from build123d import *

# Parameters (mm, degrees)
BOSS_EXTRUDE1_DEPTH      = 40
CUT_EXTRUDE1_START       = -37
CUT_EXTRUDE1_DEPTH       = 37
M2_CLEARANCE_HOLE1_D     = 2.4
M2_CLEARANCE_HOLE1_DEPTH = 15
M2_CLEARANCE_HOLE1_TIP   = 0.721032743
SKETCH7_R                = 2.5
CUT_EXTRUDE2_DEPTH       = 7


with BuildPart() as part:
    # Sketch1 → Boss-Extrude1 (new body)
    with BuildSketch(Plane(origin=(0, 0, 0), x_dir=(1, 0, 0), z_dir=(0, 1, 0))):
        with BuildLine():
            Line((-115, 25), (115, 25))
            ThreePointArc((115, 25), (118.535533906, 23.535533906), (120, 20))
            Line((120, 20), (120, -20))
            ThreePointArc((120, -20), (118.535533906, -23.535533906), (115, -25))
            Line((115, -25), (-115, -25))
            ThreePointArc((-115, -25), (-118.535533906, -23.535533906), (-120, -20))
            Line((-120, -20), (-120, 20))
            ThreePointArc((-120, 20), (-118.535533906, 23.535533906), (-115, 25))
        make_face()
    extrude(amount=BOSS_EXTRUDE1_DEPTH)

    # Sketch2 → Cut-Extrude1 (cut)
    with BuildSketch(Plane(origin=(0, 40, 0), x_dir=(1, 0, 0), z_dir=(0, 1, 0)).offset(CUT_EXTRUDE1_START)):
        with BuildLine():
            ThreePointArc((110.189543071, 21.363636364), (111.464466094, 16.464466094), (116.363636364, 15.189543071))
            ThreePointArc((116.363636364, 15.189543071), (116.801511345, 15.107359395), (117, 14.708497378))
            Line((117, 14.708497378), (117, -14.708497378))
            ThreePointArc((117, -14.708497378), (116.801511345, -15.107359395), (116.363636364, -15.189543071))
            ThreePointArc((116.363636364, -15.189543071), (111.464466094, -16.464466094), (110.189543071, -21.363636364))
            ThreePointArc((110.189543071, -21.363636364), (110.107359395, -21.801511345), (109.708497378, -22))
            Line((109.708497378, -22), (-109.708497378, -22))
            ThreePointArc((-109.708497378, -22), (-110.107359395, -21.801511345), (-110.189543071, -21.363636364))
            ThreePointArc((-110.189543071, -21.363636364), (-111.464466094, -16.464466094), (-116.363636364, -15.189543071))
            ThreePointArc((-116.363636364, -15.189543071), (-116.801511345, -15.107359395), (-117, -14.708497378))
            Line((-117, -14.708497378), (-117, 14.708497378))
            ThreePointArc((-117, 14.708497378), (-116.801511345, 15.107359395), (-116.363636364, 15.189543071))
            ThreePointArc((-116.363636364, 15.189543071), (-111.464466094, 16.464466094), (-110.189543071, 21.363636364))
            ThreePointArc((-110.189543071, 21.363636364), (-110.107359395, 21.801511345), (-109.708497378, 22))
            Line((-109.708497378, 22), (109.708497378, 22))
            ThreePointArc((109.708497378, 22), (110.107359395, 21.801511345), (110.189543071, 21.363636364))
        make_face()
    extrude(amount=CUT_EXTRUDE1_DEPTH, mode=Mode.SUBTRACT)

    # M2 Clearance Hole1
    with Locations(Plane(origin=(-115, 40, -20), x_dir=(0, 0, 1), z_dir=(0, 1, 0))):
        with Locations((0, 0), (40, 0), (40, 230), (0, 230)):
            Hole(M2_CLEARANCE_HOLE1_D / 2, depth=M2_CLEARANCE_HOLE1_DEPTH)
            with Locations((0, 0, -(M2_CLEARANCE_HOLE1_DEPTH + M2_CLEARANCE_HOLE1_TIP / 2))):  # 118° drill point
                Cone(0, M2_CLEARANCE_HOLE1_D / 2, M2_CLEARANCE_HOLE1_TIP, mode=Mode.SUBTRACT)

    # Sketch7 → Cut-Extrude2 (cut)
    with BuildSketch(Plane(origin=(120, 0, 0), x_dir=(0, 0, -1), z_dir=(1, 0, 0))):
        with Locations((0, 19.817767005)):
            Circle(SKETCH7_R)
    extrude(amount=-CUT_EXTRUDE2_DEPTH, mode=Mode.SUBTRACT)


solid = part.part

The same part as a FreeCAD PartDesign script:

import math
import FreeCAD as App
import Part
import Sketcher

V = App.Vector
Q = App.Units.Quantity

doc = App.newDocument("Part")
body = doc.addObject("PartDesign::Body", "Body")

sketch1 = doc.addObject("Sketcher::SketchObject", "Sketch")
body.addObject(sketch1)
sketch1.AttachmentSupport = (doc.XZ_Plane, [""])
sketch1.MapMode = "FlatFace"
sketch1.addGeometry([
    Part.LineSegment(V(115, -25, 0), V(-115, -25, 0)),
    Part.ArcOfCircle(Part.Circle(V(-115, -20, 0), V(0, 0, 1), 5), math.radians(180), math.radians(270)),
    Part.LineSegment(V(-120, -20, 0), V(-120, 20, 0)),
    Part.ArcOfCircle(Part.Circle(V(-115, 20, 0), V(0, 0, 1), 5), math.radians(90), math.radians(180)),
    Part.LineSegment(V(-115, 25, 0), V(115, 25, 0)),
    Part.ArcOfCircle(Part.Circle(V(115, 20, 0), V(0, 0, 1), 5), math.radians(0), math.radians(90)),
    Part.LineSegment(V(120, 20, 0), V(120, -20, 0)),
    Part.ArcOfCircle(Part.Circle(V(115, -20, 0), V(0, 0, 1), 5), math.radians(-90), math.radians(0)),
], False)
sketch1.addConstraint([
    Sketcher.Constraint("Tangent", 0, 2, 1, 2),
    Sketcher.Constraint("Tangent", 1, 1, 2, 1),
    Sketcher.Constraint("Tangent", 2, 2, 3, 2),
    Sketcher.Constraint("Tangent", 3, 1, 4, 1),
    Sketcher.Constraint("Tangent", 4, 2, 5, 2),
    Sketcher.Constraint("Tangent", 5, 1, 6, 1),
    Sketcher.Constraint("Tangent", 6, 2, 7, 2),
    Sketcher.Constraint("Tangent", 7, 1, 0, 1),
    Sketcher.Constraint("Horizontal", 0),
    Sketcher.Constraint("Vertical", 2),
    Sketcher.Constraint("Horizontal", 4),
    Sketcher.Constraint("Vertical", 6),
    Sketcher.Constraint("Equal", 1, 3),
    Sketcher.Constraint("Equal", 3, 5),
    Sketcher.Constraint("Equal", 5, 7),
    Sketcher.Constraint("Symmetric", 1, 3, 5, 3, -1, 1),
    Sketcher.Constraint("Radius", 1, Q("5 mm")),
    Sketcher.Constraint("DistanceX", 0, 2, 0, 1, Q("230 mm")),
    Sketcher.Constraint("DistanceY", 2, 1, 2, 2, Q("40 mm")),
])
pad1 = doc.addObject("PartDesign::Pad", "Pad")
body.addObject(pad1)
pad1.Profile = sketch1
pad1.Length = 40
pad1.Reversed = True

sketch2 = doc.addObject("Sketcher::SketchObject", "Sketch001")
body.addObject(sketch2)
sketch2.AttachmentSupport = (doc.XZ_Plane, [""])
sketch2.MapMode = "FlatFace"
sketch2.AttachmentOffset = App.Placement(V(0, 0, -3), App.Rotation())
sketch2.addGeometry([
    Part.ArcOfCircle(Part.Circle(V(115, -20, 0), V(0, 0, 1), 5), math.radians(74), math.radians(196)),
    Part.ArcOfCircle(Part.Circle(V(109.7, -21.5, 0), V(0, 0, 1), 0.5), math.radians(-90), math.radians(16)),
    Part.LineSegment(V(109.7, -22, 0), V(-109.7, -22, 0)),
    Part.ArcOfCircle(Part.Circle(V(-109.7, -21.5, 0), V(0, 0, 1), 0.5), math.radians(164), math.radians(270)),
    Part.ArcOfCircle(Part.Circle(V(-115, -20, 0), V(0, 0, 1), 5), math.radians(-16), math.radians(106)),
    Part.ArcOfCircle(Part.Circle(V(-116.5, -14.7, 0), V(0, 0, 1), 0.5), math.radians(180), math.radians(286)),
    Part.LineSegment(V(-117, -14.7, 0), V(-117, 14.7, 0)),
    Part.ArcOfCircle(Part.Circle(V(-116.5, 14.7, 0), V(0, 0, 1), 0.5), math.radians(74), math.radians(180)),
    Part.ArcOfCircle(Part.Circle(V(-115, 20, 0), V(0, 0, 1), 5), math.radians(-106), math.radians(16)),
    Part.ArcOfCircle(Part.Circle(V(-109.7, 21.5, 0), V(0, 0, 1), 0.5), math.radians(90), math.radians(196)),
    Part.LineSegment(V(-109.7, 22, 0), V(109.7, 22, 0)),
    Part.ArcOfCircle(Part.Circle(V(109.7, 21.5, 0), V(0, 0, 1), 0.5), math.radians(-16), math.radians(90)),
    Part.ArcOfCircle(Part.Circle(V(115, 20, 0), V(0, 0, 1), 5), math.radians(164), math.radians(286)),
    Part.ArcOfCircle(Part.Circle(V(116.5, 14.7, 0), V(0, 0, 1), 0.5), math.radians(0), math.radians(106)),
    Part.LineSegment(V(117, 14.7, 0), V(117, -14.7, 0)),
    Part.ArcOfCircle(Part.Circle(V(116.5, -14.7, 0), V(0, 0, 1), 0.5), math.radians(-106), math.radians(0)),
], False)
sketch2.addConstraint([
    Sketcher.Constraint("Tangent", 0, 2, 1, 2),
    Sketcher.Constraint("Tangent", 1, 1, 2, 1),
    Sketcher.Constraint("Tangent", 2, 2, 3, 2),
    Sketcher.Constraint("Tangent", 3, 1, 4, 1),
    Sketcher.Constraint("Tangent", 4, 2, 5, 2),
    Sketcher.Constraint("Tangent", 5, 1, 6, 1),
    Sketcher.Constraint("Tangent", 6, 2, 7, 2),
    Sketcher.Constraint("Tangent", 7, 1, 8, 1),
    Sketcher.Constraint("Tangent", 8, 2, 9, 2),
    Sketcher.Constraint("Tangent", 9, 1, 10, 1),
    Sketcher.Constraint("Tangent", 10, 2, 11, 2),
    Sketcher.Constraint("Tangent", 11, 1, 12, 1),
    Sketcher.Constraint("Tangent", 12, 2, 13, 2),
    Sketcher.Constraint("Tangent", 13, 1, 14, 1),
    Sketcher.Constraint("Tangent", 14, 2, 15, 2),
    Sketcher.Constraint("Tangent", 15, 1, 0, 1),
    Sketcher.Constraint("Horizontal", 2),
    Sketcher.Constraint("Vertical", 6),
    Sketcher.Constraint("Horizontal", 10),
    Sketcher.Constraint("Vertical", 14),
    Sketcher.Constraint("Equal", 1, 3),
    Sketcher.Constraint("Equal", 0, 4),
    Sketcher.Constraint("Equal", 3, 5),
    Sketcher.Constraint("Equal", 5, 7),
    Sketcher.Constraint("Equal", 4, 8),
    Sketcher.Constraint("Equal", 7, 9),
    Sketcher.Constraint("Equal", 9, 11),
    Sketcher.Constraint("Equal", 8, 12),
    Sketcher.Constraint("Equal", 11, 13),
    Sketcher.Constraint("Equal", 13, 15),
    Sketcher.Constraint("Symmetric", 0, 3, 8, 3, -1, 1),
    Sketcher.Constraint("Symmetric", 3, 3, 11, 3, -1, 1),
    Sketcher.Constraint("Symmetric", 5, 3, 13, 3, -1, 1),
    Sketcher.Constraint("Symmetric", 0, 3, 4, 3, -2),
    Sketcher.Constraint("Radius", 0, Q("5 mm")),
    Sketcher.Constraint("Radius", 1, Q("0.5 mm")),
    Sketcher.Constraint("DistanceX", -1, 1, 0, 3, Q("115 mm")),
    Sketcher.Constraint("DistanceY", 0, 3, -1, 1, Q("20 mm")),
    Sketcher.Constraint("DistanceY", 1, 1, -1, 1, Q("22 mm")),
    Sketcher.Constraint("DistanceX", 5, 1, -1, 1, Q("117 mm")),
])
pocket1 = doc.addObject("PartDesign::Pocket", "Pocket")
body.addObject(pocket1)
pocket1.Profile = sketch2
pocket1.Length = 37

sketch3 = doc.addObject("Sketcher::SketchObject", "Sketch002")
body.addObject(sketch3)
sketch3.AttachmentSupport = (doc.XZ_Plane, [""])
sketch3.MapMode = "FlatFace"
sketch3.AttachmentOffset = App.Placement(V(0, 0, -40), App.Rotation())
sketch3.addGeometry([
    Part.Circle(V(-115, -20, 0), V(0, 0, 1), 1.2),
    Part.Circle(V(-115, 20, 0), V(0, 0, 1), 1.2),
    Part.Circle(V(115, 20, 0), V(0, 0, 1), 1.2),
    Part.Circle(V(115, -20, 0), V(0, 0, 1), 1.2),
], False)
sketch3.addConstraint([
    Sketcher.Constraint("Equal", 0, 1),
    Sketcher.Constraint("Equal", 1, 2),
    Sketcher.Constraint("Equal", 2, 3),
    Sketcher.Constraint("Symmetric", 0, 3, 2, 3, -1, 1),
    Sketcher.Constraint("Symmetric", 1, 3, 3, 3, -1, 1),
    Sketcher.Constraint("Symmetric", 1, 3, 2, 3, -2),
    Sketcher.Constraint("Diameter", 0, Q("2.4 mm")),
    Sketcher.Constraint("DistanceX", 0, 3, -1, 1, Q("115 mm")),
    Sketcher.Constraint("DistanceY", 0, 3, -1, 1, Q("20 mm")),
])
doc.recompute()
hole = doc.addObject("PartDesign::Hole", "Hole")
body.addObject(hole)
hole.Profile = sketch3
hole.ThreadType = "None"
hole.Diameter = 2.4
hole.DepthType = "Dimension"
hole.Depth = 15
hole.DrillPoint = "Angled"
hole.DrillPointAngle = 118
hole.Reversed = True

sketch4 = doc.addObject("Sketcher::SketchObject", "Sketch003")
body.addObject(sketch4)
sketch4.AttachmentSupport = (doc.YZ_Plane, [""])
sketch4.MapMode = "FlatFace"
sketch4.AttachmentOffset = App.Placement(V(0, 0, 120), App.Rotation())
sketch4.addGeometry(Part.Circle(V(19.8, 0, 0), V(0, 0, 1), 2.5), False)
sketch4.addConstraint([
    Sketcher.Constraint("PointOnObject", 0, 3, -1),
    Sketcher.Constraint("Diameter", 0, Q("5 mm")),
    Sketcher.Constraint("DistanceX", -1, 1, 0, 3, Q("19.817767 mm")),
])
pocket2 = doc.addObject("PartDesign::Pocket", "Pocket001")
body.addObject(pocket2)
pocket2.Profile = sketch4
pocket2.Length = 7

doc.recompute()
